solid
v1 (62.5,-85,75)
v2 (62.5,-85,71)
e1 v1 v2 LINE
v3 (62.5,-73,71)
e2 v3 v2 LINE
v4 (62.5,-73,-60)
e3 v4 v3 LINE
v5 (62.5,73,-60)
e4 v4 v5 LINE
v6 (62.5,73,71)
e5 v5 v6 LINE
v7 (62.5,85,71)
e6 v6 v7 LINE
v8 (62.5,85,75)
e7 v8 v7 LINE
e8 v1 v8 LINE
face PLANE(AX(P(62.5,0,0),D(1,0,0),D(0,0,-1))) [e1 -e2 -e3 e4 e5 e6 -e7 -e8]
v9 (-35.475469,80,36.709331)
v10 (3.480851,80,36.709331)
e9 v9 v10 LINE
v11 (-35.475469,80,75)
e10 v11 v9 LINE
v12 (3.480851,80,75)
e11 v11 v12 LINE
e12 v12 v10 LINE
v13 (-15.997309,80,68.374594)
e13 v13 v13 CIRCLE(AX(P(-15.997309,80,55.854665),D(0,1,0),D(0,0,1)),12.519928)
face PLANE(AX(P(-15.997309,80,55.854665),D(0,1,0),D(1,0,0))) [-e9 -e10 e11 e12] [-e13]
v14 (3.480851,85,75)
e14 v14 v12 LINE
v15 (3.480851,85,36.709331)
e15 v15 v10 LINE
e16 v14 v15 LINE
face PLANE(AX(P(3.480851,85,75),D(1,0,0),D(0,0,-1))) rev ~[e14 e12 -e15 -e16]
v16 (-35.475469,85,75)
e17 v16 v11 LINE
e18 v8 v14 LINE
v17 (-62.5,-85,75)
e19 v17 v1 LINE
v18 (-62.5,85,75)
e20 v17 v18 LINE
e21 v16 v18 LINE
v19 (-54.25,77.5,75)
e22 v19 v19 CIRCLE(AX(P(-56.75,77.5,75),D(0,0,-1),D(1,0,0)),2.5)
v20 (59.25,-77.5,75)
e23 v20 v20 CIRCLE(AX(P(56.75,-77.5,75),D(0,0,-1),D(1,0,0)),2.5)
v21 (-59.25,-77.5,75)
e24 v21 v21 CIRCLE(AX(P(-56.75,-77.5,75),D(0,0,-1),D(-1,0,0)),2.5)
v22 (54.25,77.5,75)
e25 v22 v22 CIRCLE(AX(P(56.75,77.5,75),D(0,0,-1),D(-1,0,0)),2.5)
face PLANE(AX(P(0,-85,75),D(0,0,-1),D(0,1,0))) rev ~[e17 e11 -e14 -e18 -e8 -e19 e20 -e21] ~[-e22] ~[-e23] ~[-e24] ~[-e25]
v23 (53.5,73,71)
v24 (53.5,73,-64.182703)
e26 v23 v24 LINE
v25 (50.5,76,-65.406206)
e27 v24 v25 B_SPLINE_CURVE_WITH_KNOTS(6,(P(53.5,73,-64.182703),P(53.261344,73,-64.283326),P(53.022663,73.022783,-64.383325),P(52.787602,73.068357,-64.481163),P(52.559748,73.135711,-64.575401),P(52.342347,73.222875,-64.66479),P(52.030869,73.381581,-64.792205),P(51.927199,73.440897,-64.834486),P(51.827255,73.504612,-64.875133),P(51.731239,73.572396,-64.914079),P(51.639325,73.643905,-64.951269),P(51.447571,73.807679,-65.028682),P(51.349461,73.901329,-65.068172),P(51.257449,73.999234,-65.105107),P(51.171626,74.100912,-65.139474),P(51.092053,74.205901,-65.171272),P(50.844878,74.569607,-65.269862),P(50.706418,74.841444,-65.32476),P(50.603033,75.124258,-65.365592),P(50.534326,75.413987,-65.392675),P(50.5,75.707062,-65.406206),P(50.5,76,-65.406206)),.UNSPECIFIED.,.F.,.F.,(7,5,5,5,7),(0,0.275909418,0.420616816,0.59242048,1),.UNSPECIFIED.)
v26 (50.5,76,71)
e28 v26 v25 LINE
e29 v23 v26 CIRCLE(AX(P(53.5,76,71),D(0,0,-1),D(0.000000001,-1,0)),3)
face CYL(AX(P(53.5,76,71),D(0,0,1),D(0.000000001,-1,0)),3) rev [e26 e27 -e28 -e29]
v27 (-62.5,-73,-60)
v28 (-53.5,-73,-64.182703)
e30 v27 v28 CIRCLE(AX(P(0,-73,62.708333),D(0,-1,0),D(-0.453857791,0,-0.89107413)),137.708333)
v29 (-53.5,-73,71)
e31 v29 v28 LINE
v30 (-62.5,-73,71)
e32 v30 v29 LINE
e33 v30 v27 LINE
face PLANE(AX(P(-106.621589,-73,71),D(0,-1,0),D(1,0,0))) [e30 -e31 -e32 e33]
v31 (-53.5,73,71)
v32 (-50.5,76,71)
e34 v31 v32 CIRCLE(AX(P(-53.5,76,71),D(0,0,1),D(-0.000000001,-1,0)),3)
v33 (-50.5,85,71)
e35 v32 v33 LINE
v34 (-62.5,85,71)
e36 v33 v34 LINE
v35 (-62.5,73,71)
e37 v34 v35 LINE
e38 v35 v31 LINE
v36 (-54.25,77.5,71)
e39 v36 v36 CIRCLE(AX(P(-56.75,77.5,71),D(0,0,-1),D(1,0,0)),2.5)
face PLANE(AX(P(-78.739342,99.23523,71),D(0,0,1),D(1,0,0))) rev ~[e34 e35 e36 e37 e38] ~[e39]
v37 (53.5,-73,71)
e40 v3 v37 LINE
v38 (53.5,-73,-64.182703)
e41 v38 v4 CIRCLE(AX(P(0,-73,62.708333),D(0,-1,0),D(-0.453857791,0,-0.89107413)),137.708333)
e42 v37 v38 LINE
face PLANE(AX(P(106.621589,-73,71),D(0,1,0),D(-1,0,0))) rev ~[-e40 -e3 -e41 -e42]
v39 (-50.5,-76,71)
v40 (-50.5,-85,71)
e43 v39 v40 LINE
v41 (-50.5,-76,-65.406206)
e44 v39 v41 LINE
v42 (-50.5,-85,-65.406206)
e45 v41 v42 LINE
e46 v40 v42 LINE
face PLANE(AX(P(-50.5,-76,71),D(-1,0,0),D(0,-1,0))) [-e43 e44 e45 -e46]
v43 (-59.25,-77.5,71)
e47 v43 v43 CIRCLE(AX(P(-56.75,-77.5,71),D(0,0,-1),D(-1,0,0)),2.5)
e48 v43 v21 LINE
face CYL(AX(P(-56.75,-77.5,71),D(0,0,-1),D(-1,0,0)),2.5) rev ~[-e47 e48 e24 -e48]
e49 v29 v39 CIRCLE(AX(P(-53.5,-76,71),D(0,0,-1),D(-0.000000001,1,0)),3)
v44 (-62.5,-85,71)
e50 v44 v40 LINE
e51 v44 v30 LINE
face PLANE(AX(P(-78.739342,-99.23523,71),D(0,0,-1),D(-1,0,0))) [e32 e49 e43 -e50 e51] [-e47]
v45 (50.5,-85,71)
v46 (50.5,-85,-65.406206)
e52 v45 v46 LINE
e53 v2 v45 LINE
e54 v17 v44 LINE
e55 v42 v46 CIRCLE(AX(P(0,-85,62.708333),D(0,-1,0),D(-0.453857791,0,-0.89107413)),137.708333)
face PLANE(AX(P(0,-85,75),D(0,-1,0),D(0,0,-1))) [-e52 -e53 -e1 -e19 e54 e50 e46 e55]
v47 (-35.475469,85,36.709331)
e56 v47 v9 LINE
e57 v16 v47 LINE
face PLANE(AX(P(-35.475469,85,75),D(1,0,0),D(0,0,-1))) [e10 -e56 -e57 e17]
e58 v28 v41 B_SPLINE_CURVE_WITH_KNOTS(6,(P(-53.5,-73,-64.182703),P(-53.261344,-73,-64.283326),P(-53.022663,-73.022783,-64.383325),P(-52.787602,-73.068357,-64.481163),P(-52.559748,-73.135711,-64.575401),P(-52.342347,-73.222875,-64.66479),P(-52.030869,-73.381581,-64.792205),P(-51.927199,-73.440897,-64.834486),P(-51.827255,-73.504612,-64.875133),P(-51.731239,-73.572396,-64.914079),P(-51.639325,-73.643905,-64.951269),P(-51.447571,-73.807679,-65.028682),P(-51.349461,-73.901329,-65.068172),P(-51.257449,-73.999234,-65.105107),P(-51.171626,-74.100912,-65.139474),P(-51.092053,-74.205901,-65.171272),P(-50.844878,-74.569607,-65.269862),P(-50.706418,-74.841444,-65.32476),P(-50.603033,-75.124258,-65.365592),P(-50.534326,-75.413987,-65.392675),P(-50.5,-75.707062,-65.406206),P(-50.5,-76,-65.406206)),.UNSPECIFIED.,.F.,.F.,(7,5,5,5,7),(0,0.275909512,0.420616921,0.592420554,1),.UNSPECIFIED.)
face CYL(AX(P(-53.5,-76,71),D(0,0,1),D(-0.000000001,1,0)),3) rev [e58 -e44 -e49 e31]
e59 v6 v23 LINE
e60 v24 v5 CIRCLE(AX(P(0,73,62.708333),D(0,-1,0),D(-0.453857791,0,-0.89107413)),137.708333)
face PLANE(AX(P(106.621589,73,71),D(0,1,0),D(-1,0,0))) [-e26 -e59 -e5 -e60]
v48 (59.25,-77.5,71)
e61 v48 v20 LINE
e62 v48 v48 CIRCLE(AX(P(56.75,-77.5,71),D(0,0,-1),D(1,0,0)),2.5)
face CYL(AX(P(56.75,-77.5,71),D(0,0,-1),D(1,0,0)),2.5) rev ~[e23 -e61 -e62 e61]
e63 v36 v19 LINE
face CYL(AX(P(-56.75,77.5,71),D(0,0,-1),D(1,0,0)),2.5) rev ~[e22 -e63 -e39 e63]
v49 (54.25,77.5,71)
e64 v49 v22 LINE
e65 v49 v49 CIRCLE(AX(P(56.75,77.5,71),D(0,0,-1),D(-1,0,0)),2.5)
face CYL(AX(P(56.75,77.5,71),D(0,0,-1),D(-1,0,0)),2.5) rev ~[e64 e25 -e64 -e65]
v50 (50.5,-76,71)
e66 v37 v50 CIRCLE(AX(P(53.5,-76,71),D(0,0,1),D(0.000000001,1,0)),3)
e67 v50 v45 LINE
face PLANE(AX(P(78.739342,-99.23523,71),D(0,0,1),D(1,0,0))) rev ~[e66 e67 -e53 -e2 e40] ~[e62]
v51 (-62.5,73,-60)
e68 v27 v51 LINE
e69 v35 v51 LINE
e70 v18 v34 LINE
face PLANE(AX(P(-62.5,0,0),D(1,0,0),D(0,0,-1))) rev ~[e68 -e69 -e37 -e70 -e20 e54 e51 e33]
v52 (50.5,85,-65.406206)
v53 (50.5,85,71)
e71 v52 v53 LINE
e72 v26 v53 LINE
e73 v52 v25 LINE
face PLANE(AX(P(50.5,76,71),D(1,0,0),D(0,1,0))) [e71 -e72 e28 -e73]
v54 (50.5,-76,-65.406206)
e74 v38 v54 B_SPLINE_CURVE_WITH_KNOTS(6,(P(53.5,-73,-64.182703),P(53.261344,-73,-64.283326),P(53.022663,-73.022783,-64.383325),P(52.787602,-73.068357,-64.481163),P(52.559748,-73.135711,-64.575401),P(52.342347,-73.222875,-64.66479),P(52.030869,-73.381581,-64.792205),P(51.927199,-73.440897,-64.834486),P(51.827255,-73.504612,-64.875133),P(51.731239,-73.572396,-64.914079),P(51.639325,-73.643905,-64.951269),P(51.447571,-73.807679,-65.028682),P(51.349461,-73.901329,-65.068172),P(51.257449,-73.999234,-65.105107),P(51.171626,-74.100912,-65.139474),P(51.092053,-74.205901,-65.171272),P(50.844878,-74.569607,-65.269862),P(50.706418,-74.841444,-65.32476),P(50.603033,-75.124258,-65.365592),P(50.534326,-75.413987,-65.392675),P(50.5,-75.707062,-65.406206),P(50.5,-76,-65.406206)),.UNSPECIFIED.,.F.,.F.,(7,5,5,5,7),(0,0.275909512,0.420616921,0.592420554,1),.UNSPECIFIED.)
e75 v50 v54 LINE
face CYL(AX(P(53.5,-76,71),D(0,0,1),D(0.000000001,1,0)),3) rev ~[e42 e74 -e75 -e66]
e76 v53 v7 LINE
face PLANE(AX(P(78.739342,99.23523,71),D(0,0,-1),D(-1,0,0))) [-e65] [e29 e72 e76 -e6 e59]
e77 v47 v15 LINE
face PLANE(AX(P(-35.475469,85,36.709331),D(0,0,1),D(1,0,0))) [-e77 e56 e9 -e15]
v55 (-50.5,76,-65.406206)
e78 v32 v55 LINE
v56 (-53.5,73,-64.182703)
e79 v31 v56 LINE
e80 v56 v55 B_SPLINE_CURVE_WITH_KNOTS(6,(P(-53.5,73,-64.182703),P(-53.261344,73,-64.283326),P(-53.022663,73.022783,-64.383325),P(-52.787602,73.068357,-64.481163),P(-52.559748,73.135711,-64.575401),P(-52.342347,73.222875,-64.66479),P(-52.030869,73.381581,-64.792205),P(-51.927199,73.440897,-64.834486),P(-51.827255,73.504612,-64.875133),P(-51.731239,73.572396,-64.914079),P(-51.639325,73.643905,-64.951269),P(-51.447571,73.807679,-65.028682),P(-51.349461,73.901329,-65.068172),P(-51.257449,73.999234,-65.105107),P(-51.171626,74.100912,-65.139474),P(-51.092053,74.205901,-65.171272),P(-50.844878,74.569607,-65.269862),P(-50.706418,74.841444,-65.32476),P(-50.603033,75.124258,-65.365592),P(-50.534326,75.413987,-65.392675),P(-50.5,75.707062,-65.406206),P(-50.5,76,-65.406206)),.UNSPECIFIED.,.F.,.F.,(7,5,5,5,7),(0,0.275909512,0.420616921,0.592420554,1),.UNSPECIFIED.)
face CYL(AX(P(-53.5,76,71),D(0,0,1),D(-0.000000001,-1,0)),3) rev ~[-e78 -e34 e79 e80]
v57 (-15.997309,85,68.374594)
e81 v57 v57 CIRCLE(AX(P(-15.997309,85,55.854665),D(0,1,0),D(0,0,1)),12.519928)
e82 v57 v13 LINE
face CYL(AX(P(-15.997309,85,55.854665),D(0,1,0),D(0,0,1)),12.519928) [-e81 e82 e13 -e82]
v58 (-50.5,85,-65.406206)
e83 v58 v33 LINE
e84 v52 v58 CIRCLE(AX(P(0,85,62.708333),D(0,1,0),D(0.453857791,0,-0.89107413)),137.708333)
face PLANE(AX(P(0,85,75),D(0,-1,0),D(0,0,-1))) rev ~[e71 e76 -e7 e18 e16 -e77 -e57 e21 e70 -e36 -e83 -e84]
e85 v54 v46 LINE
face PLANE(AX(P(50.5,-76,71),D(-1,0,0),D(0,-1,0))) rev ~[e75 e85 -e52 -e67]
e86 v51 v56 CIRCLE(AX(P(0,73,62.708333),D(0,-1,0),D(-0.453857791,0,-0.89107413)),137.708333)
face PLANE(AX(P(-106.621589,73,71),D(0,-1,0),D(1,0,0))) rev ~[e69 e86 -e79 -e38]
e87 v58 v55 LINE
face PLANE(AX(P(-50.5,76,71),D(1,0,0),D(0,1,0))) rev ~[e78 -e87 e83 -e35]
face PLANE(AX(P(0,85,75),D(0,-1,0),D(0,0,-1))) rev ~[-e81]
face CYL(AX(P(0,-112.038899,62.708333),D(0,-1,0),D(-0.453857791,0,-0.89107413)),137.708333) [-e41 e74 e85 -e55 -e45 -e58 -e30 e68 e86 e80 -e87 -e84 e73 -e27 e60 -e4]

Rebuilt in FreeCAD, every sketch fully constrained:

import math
import FreeCAD as App
import Part
import Sketcher
Q = App.Units.Quantity


def add_polygon(sketch, points):
    """Adds a closed chain of lines whose ends are joined by coincident constraints."""
    first, n = sketch.GeometryCount, len(points)
    for a, b in zip(points, points[1:] + points[:1]):
        sketch.addGeometry(Part.LineSegment(App.Vector(*a, 0), App.Vector(*b, 0)), False)
    for i in range(n):
        sketch.addConstraint(Sketcher.Constraint("Coincident", first + i, 2, first + (i + 1) % n, 1))

doc = App.newDocument("Part")
body = doc.addObject("PartDesign::Body", "Body")

sketch1 = doc.addObject("Sketcher::SketchObject", "Sketch")
body.addObject(sketch1)
sketch1.AttachmentSupport = (doc.YZ_Plane, [""])
sketch1.MapMode = "FlatFace"
add_polygon(sketch1, [(85, 75), (-85, 75), (-85, -75), (85, -75)])
sketch1.addConstraint(Sketcher.Constraint("Horizontal", 0))
sketch1.addConstraint(Sketcher.Constraint("Vertical", 1))
sketch1.addConstraint(Sketcher.Constraint("Horizontal", 2))
sketch1.addConstraint(Sketcher.Constraint("Vertical", 3))
sketch1.addConstraint(Sketcher.Constraint("Symmetric", 0, 2, 2, 2, -1, 1))
sketch1.addConstraint(Sketcher.Constraint("DistanceX", 0, 2, 0, 1, Q("170 mm")))
sketch1.addConstraint(Sketcher.Constraint("DistanceY", 1, 2, 1, 1, Q("150 mm")))
pad1 = doc.addObject("PartDesign::Pad", "Pad")
body.addObject(pad1)
pad1.Profile = sketch1
pad1.Length = 125
pad1.Midplane = True

sketch2 = doc.addObject("Sketcher::SketchObject", "Sketch001")
body.addObject(sketch2)
sketch2.AttachmentSupport = (doc.XZ_Plane, [""])
sketch2.MapMode = "FlatFace"
sketch2.AttachmentOffset = App.Placement(App.Vector(0, 0, -85), App.Rotation())
sketch2.addGeometry(Part.LineSegment(App.Vector(-399, 112, 0), App.Vector(-62, -60, 0)), False)
sketch2.addGeometry(Part.ArcOfCircle(Part.Circle(App.Vector(0, 63, 0), App.Vector(0, 0, 1), 138), math.radians(-117), math.radians(-63)), False)
sketch2.addGeometry(Part.LineSegment(App.Vector(62, -60, 0), App.Vector(399, 112, 0)), False)
sketch2.addGeometry(Part.LineSegment(App.Vector(399, 112, 0), App.Vector(399, -644, 0)), False)
sketch2.addGeometry(Part.LineSegment(App.Vector(399, -644, 0), App.Vector(-399, -644, 0)), False)
sketch2.addGeometry(Part.LineSegment(App.Vector(-399, -644, 0), App.Vector(-399, 112, 0)), False)
sketch2.addConstraint(Sketcher.Constraint("Tangent", 0, 2, 1, 1))
sketch2.addConstraint(Sketcher.Constraint("Tangent", 1, 2, 2, 1))
sketch2.addConstraint(Sketcher.Constraint("Coincident", 2, 2, 3, 1))
sketch2.addConstraint(Sketcher.Constraint("Coincident", 3, 2, 4, 1))
sketch2.addConstraint(Sketcher.Constraint("Coincident", 4, 2, 5, 1))
sketch2.addConstraint(Sketcher.Constraint("Coincident", 5, 2, 0, 1))
sketch2.addConstraint(Sketcher.Constraint("Vertical", 3))
sketch2.addConstraint(Sketcher.Constraint("Horizontal", 4))
sketch2.addConstraint(Sketcher.Constraint("Vertical", 5))
sketch2.addConstraint(Sketcher.Constraint("Symmetric", 0, 2, 1, 2, -2))
sketch2.addConstraint(Sketcher.Constraint("Horizontal", 2, 2, 5, 2))
sketch2.addConstraint(Sketcher.Constraint("DistanceY", 0, 2, -1, 1, Q("60 mm")))
sketch2.addConstraint(Sketcher.Constraint("DistanceX", 0, 2, 1, 2, Q("125 mm")))
sketch2.addConstraint(Sketcher.Constraint("Radius", 1, Q("137.708333 mm")))
sketch2.addConstraint(Sketcher.Constraint("DistanceY", 3, 2, 3, 1, Q("755.93478 mm")))
sketch2.addConstraint(Sketcher.Constraint("Distance", 0, Q("377.96739 mm")))
pocket1 = doc.addObject("PartDesign::Pocket", "Pocket")
body.addObject(pocket1)
pocket1.Profile = sketch2
pocket1.Type = "ThroughAll"
pocket1.Midplane = True

sketch3 = doc.addObject("Sketcher::SketchObject", "Sketch002")
body.addObject(sketch3)
sketch3.AttachmentSupport = (doc.XY_Plane, [""])
sketch3.MapMode = "FlatFace"
sketch3.AttachmentOffset = App.Placement(App.Vector(0, 0, 71), App.Rotation())
sketch3.addGeometry(Part.LineSegment(App.Vector(106.6, 125.1, 0), App.Vector(50.5, 125.1, 0)), False)
sketch3.addGeometry(Part.LineSegment(App.Vector(50.5, 125.1, 0), App.Vector(50.5, 76, 0)), False)
sketch3.addGeometry(Part.ArcOfCircle(Part.Circle(App.Vector(53.5, 76, 0), App.Vector(0, 0, 1), 3), math.radians(180), math.radians(270)), False)
sketch3.addGeometry(Part.LineSegment(App.Vector(53.5, 73, 0), App.Vector(106.6, 73, 0)), False)
sketch3.addGeometry(Part.LineSegment(App.Vector(106.6, 73, 0), App.Vector(106.6, 125.1, 0)), False)
sketch3.addGeometry(Part.LineSegment(App.Vector(-106.6, 125.1, 0), App.Vector(-106.6, 73, 0)), False)
sketch3.addGeometry(Part.LineSegment(App.Vector(-106.6, 73, 0), App.Vector(-53.5, 73, 0)), False)
sketch3.addGeometry(Part.ArcOfCircle(Part.Circle(App.Vector(-53.5, 76, 0), App.Vector(0, 0, 1), 3), math.radians(-90), math.radians(0)), False)
sketch3.addGeometry(Part.LineSegment(App.Vector(-50.5, 76, 0), App.Vector(-50.5, 125.1, 0)), False)
sketch3.addGeometry(Part.LineSegment(App.Vector(-50.5, 125.1, 0), App.Vector(-106.6, 125.1, 0)), False)
sketch3.addGeometry(Part.LineSegment(App.Vector(-106.6, -125.1, 0), App.Vector(-50.5, -125.1, 0)), False)
sketch3.addGeometry(Part.LineSegment(App.Vector(-50.5, -125.1, 0), App.Vector(-50.5, -76, 0)), False)
sketch3.addGeometry(Part.ArcOfCircle(Part.Circle(App.Vector(-53.5, -76, 0), App.Vector(0, 0, 1), 3), math.radians(0), math.radians(90)), False)
sketch3.addGeometry(Part.LineSegment(App.Vector(-53.5, -73, 0), App.Vector(-106.6, -73, 0)), False)
sketch3.addGeometry(Part.LineSegment(App.Vector(-106.6, -73, 0), App.Vector(-106.6, -125.1, 0)), False)
sketch3.addGeometry(Part.LineSegment(App.Vector(106.6, -125.1, 0), App.Vector(106.6, -73, 0)), False)
sketch3.addGeometry(Part.LineSegment(App.Vector(106.6, -73, 0), App.Vector(53.5, -73, 0)), False)
sketch3.addGeometry(Part.ArcOfCircle(Part.Circle(App.Vector(53.5, -76, 0), App.Vector(0, 0, 1), 3), math.radians(90), math.radians(180)), False)
sketch3.addGeometry(Part.LineSegment(App.Vector(50.5, -76, 0), App.Vector(50.5, -125.1, 0)), False)
sketch3.addGeometry(Part.LineSegment(App.Vector(50.5, -125.1, 0), App.Vector(106.6, -125.1, 0)), False)
sketch3.addConstraint(Sketcher.Constraint("Coincident", 0, 2, 1, 1))
sketch3.addConstraint(Sketcher.Constraint("Tangent", 1, 2, 2, 1))
sketch3.addConstraint(Sketcher.Constraint("Tangent", 2, 2, 3, 1))
sketch3.addConstraint(Sketcher.Constraint("Coincident", 3, 2, 4, 1))
sketch3.addConstraint(Sketcher.Constraint("Coincident", 4, 2, 0, 1))
sketch3.addConstraint(Sketcher.Constraint("Coincident", 5, 2, 6, 1))
sketch3.addConstraint(Sketcher.Constraint("Tangent", 6, 2, 7, 1))
sketch3.addConstraint(Sketcher.Constraint("Tangent", 7, 2, 8, 1))
sketch3.addConstraint(Sketcher.Constraint("Coincident", 8, 2, 9, 1))
sketch3.addConstraint(Sketcher.Constraint("Coincident", 9, 2, 5, 1))
sketch3.addConstraint(Sketcher.Constraint("Coincident", 10, 2, 11, 1))
sketch3.addConstraint(Sketcher.Constraint("Tangent", 11, 2, 12, 1))
sketch3.addConstraint(Sketcher.Constraint("Tangent", 12, 2, 13, 1))
sketch3.addConstraint(Sketcher.Constraint("Coincident", 13, 2, 14, 1))
sketch3.addConstraint(Sketcher.Constraint("Coincident", 14, 2, 10, 1))
sketch3.addConstraint(Sketcher.Constraint("Coincident", 15, 2, 16, 1))
sketch3.addConstraint(Sketcher.Constraint("Tangent", 16, 2, 17, 1))
sketch3.addConstraint(Sketcher.Constraint("Tangent", 17, 2, 18, 1))
sketch3.addConstraint(Sketcher.Constraint("Coincident", 18, 2, 19, 1))
sketch3.addConstraint(Sketcher.Constraint("Coincident", 19, 2, 15, 1))
sketch3.addConstraint(Sketcher.Constraint("Horizontal", 0))
sketch3.addConstraint(Sketcher.Constraint("Vertical", 1))
sketch3.addConstraint(Sketcher.Constraint("Horizontal", 3))
sketch3.addConstraint(Sketcher.Constraint("Vertical", 4))
sketch3.addConstraint(Sketcher.Constraint("Vertical", 5))
sketch3.addConstraint(Sketcher.Constraint("Horizontal", 6))
sketch3.addConstraint(Sketcher.Constraint("Vertical", 8))
sketch3.addConstraint(Sketcher.Constraint("Horizontal", 9))
sketch3.addConstraint(Sketcher.Constraint("Horizontal", 10))
sketch3.addConstraint(Sketcher.Constraint("Vertical", 11))
sketch3.addConstraint(Sketcher.Constraint("Horizontal", 13))
sketch3.addConstraint(Sketcher.Constraint("Vertical", 14))
sketch3.addConstraint(Sketcher.Constraint("Vertical", 15))
sketch3.addConstraint(Sketcher.Constraint("Horizontal", 16))
sketch3.addConstraint(Sketcher.Constraint("Vertical", 18))
sketch3.addConstraint(Sketcher.Constraint("Horizontal", 19))
sketch3.addConstraint(Sketcher.Constraint("Equal", 2, 7))
sketch3.addConstraint(Sketcher.Constraint("Equal", 7, 12))
sketch3.addConstraint(Sketcher.Constraint("Equal", 12, 17))
sketch3.addConstraint(Sketcher.Constraint("Symmetric", 2, 3, 12, 3, -1, 1))
sketch3.addConstraint(Sketcher.Constraint("Symmetric", 7, 3, 17, 3, -1, 1))
sketch3.addConstraint(Sketcher.Constraint("Symmetric", 4, 2, 14, 2, -1, 1))
sketch3.addConstraint(Sketcher.Constraint("Symmetric", 9, 2, 19, 2, -1, 1))
sketch3.addConstraint(Sketcher.Constraint("Symmetric", 2, 3, 7, 3, -2))
sketch3.addConstraint(Sketcher.Constraint("Symmetric", 4, 2, 9, 2, -2))
sketch3.addConstraint(Sketcher.Constraint("Radius", 2, Q("3 mm")))
sketch3.addConstraint(Sketcher.Constraint("DistanceY", -1, 1, 2, 3, Q("76 mm")))
sketch3.addConstraint(Sketcher.Constraint("DistanceX", 7, 3, 2, 3, Q("107 mm")))
sketch3.addConstraint(Sketcher.Constraint("DistanceX", 0, 2, 0, 1, Q("56.121589 mm")))
sketch3.addConstraint(Sketcher.Constraint("DistanceY", 1, 2, 1, 1, Q("49.138194 mm")))
pocket2 = doc.addObject("PartDesign::Pocket", "Pocket001")
body.addObject(pocket2)
pocket2.Profile = sketch3
pocket2.Type = "ThroughAll"

sketch4 = doc.addObject("Sketcher::SketchObject", "Sketch003")
body.addObject(sketch4)
sketch4.AttachmentSupport = (doc.XY_Plane, [""])
sketch4.MapMode = "FlatFace"
sketch4.AttachmentOffset = App.Placement(App.Vector(0, 0, 71), App.Rotation())
sketch4.addGeometry(Part.Circle(App.Vector(56.8, 77.5, 0), App.Vector(0, 0, 1), 2.5), False)
sketch4.addGeometry(Part.Circle(App.Vector(-56.8, 77.5, 0), App.Vector(0, 0, 1), 2.5), False)
sketch4.addGeometry(Part.Circle(App.Vector(-56.8, -77.5, 0), App.Vector(0, 0, 1), 2.5), False)
sketch4.addGeometry(Part.Circle(App.Vector(56.8, -77.5, 0), App.Vector(0, 0, 1), 2.5), False)
sketch4.addConstraint(Sketcher.Constraint("Equal", 0, 1))
sketch4.addConstraint(Sketcher.Constraint("Equal", 1, 2))
sketch4.addConstraint(Sketcher.Constraint("Equal", 2, 3))
sketch4.addConstraint(Sketcher.Constraint("Symmetric", 0, 3, 2, 3, -1, 1))
sketch4.addConstraint(Sketcher.Constraint("Symmetric", 1, 3, 3, 3, -1, 1))
sketch4.addConstraint(Sketcher.Constraint("Symmetric", 0, 3, 1, 3, -2))
sketch4.addConstraint(Sketcher.Constraint("Diameter", 0, Q("5 mm")))
sketch4.addConstraint(Sketcher.Constraint("DistanceY", 2, 3, 1, 3, Q("155 mm")))
sketch4.addConstraint(Sketcher.Constraint("DistanceX", 1, 3, 0, 3, Q("113.5 mm")))
pocket3 = doc.addObject("PartDesign::Pocket", "Pocket002")
body.addObject(pocket3)
pocket3.Profile = sketch4
pocket3.Type = "ThroughAll"
pocket3.Reversed = True

sketch5 = doc.addObject("Sketcher::SketchObject", "Sketch004")
body.addObject(sketch5)
sketch5.AttachmentSupport = (doc.XZ_Plane, [""])
sketch5.MapMode = "FlatFace"
sketch5.AttachmentOffset = App.Placement(App.Vector(0, 0, -85), App.Rotation())
add_polygon(sketch5, [(-35, 37), (-35, 75), (3, 75), (3, 37)])
sketch5.addGeometry(Part.Circle(App.Vector(-16, 56, 0), App.Vector(0, 0, 1), 13), False)
sketch5.addConstraint(Sketcher.Constraint("Vertical", 0))
sketch5.addConstraint(Sketcher.Constraint("Horizontal", 1))
sketch5.addConstraint(Sketcher.Constraint("Vertical", 2))
sketch5.addConstraint(Sketcher.Constraint("Horizontal", 3))
sketch5.addConstraint(Sketcher.Constraint("DistanceY", -1, 1, 0, 2, Q("75 mm")))
sketch5.addConstraint(Sketcher.Constraint("Diameter", 4, Q("25.039856 mm")))
sketch5.addConstraint(Sketcher.Constraint("DistanceX", 1, 1, 1, 2, Q("38.95632 mm")))
sketch5.addConstraint(Sketcher.Constraint("DistanceY", 0, 1, 0, 2, Q("38.290669 mm")))
sketch5.addConstraint(Sketcher.Constraint("DistanceX", 4, 3, -1, 1, Q("15.997309 mm")))
sketch5.addConstraint(Sketcher.Constraint("DistanceX", 0, 2, -1, 1, Q("35.475469 mm")))
sketch5.addConstraint(Sketcher.Constraint("DistanceY", -1, 1, 4, 3, Q("55.854665 mm")))
pocket4 = doc.addObject("PartDesign::Pocket", "Pocket003")
body.addObject(pocket4)
pocket4.Profile = sketch5
pocket4.Length = 5
pocket4.Reversed = True

doc.recompute()
